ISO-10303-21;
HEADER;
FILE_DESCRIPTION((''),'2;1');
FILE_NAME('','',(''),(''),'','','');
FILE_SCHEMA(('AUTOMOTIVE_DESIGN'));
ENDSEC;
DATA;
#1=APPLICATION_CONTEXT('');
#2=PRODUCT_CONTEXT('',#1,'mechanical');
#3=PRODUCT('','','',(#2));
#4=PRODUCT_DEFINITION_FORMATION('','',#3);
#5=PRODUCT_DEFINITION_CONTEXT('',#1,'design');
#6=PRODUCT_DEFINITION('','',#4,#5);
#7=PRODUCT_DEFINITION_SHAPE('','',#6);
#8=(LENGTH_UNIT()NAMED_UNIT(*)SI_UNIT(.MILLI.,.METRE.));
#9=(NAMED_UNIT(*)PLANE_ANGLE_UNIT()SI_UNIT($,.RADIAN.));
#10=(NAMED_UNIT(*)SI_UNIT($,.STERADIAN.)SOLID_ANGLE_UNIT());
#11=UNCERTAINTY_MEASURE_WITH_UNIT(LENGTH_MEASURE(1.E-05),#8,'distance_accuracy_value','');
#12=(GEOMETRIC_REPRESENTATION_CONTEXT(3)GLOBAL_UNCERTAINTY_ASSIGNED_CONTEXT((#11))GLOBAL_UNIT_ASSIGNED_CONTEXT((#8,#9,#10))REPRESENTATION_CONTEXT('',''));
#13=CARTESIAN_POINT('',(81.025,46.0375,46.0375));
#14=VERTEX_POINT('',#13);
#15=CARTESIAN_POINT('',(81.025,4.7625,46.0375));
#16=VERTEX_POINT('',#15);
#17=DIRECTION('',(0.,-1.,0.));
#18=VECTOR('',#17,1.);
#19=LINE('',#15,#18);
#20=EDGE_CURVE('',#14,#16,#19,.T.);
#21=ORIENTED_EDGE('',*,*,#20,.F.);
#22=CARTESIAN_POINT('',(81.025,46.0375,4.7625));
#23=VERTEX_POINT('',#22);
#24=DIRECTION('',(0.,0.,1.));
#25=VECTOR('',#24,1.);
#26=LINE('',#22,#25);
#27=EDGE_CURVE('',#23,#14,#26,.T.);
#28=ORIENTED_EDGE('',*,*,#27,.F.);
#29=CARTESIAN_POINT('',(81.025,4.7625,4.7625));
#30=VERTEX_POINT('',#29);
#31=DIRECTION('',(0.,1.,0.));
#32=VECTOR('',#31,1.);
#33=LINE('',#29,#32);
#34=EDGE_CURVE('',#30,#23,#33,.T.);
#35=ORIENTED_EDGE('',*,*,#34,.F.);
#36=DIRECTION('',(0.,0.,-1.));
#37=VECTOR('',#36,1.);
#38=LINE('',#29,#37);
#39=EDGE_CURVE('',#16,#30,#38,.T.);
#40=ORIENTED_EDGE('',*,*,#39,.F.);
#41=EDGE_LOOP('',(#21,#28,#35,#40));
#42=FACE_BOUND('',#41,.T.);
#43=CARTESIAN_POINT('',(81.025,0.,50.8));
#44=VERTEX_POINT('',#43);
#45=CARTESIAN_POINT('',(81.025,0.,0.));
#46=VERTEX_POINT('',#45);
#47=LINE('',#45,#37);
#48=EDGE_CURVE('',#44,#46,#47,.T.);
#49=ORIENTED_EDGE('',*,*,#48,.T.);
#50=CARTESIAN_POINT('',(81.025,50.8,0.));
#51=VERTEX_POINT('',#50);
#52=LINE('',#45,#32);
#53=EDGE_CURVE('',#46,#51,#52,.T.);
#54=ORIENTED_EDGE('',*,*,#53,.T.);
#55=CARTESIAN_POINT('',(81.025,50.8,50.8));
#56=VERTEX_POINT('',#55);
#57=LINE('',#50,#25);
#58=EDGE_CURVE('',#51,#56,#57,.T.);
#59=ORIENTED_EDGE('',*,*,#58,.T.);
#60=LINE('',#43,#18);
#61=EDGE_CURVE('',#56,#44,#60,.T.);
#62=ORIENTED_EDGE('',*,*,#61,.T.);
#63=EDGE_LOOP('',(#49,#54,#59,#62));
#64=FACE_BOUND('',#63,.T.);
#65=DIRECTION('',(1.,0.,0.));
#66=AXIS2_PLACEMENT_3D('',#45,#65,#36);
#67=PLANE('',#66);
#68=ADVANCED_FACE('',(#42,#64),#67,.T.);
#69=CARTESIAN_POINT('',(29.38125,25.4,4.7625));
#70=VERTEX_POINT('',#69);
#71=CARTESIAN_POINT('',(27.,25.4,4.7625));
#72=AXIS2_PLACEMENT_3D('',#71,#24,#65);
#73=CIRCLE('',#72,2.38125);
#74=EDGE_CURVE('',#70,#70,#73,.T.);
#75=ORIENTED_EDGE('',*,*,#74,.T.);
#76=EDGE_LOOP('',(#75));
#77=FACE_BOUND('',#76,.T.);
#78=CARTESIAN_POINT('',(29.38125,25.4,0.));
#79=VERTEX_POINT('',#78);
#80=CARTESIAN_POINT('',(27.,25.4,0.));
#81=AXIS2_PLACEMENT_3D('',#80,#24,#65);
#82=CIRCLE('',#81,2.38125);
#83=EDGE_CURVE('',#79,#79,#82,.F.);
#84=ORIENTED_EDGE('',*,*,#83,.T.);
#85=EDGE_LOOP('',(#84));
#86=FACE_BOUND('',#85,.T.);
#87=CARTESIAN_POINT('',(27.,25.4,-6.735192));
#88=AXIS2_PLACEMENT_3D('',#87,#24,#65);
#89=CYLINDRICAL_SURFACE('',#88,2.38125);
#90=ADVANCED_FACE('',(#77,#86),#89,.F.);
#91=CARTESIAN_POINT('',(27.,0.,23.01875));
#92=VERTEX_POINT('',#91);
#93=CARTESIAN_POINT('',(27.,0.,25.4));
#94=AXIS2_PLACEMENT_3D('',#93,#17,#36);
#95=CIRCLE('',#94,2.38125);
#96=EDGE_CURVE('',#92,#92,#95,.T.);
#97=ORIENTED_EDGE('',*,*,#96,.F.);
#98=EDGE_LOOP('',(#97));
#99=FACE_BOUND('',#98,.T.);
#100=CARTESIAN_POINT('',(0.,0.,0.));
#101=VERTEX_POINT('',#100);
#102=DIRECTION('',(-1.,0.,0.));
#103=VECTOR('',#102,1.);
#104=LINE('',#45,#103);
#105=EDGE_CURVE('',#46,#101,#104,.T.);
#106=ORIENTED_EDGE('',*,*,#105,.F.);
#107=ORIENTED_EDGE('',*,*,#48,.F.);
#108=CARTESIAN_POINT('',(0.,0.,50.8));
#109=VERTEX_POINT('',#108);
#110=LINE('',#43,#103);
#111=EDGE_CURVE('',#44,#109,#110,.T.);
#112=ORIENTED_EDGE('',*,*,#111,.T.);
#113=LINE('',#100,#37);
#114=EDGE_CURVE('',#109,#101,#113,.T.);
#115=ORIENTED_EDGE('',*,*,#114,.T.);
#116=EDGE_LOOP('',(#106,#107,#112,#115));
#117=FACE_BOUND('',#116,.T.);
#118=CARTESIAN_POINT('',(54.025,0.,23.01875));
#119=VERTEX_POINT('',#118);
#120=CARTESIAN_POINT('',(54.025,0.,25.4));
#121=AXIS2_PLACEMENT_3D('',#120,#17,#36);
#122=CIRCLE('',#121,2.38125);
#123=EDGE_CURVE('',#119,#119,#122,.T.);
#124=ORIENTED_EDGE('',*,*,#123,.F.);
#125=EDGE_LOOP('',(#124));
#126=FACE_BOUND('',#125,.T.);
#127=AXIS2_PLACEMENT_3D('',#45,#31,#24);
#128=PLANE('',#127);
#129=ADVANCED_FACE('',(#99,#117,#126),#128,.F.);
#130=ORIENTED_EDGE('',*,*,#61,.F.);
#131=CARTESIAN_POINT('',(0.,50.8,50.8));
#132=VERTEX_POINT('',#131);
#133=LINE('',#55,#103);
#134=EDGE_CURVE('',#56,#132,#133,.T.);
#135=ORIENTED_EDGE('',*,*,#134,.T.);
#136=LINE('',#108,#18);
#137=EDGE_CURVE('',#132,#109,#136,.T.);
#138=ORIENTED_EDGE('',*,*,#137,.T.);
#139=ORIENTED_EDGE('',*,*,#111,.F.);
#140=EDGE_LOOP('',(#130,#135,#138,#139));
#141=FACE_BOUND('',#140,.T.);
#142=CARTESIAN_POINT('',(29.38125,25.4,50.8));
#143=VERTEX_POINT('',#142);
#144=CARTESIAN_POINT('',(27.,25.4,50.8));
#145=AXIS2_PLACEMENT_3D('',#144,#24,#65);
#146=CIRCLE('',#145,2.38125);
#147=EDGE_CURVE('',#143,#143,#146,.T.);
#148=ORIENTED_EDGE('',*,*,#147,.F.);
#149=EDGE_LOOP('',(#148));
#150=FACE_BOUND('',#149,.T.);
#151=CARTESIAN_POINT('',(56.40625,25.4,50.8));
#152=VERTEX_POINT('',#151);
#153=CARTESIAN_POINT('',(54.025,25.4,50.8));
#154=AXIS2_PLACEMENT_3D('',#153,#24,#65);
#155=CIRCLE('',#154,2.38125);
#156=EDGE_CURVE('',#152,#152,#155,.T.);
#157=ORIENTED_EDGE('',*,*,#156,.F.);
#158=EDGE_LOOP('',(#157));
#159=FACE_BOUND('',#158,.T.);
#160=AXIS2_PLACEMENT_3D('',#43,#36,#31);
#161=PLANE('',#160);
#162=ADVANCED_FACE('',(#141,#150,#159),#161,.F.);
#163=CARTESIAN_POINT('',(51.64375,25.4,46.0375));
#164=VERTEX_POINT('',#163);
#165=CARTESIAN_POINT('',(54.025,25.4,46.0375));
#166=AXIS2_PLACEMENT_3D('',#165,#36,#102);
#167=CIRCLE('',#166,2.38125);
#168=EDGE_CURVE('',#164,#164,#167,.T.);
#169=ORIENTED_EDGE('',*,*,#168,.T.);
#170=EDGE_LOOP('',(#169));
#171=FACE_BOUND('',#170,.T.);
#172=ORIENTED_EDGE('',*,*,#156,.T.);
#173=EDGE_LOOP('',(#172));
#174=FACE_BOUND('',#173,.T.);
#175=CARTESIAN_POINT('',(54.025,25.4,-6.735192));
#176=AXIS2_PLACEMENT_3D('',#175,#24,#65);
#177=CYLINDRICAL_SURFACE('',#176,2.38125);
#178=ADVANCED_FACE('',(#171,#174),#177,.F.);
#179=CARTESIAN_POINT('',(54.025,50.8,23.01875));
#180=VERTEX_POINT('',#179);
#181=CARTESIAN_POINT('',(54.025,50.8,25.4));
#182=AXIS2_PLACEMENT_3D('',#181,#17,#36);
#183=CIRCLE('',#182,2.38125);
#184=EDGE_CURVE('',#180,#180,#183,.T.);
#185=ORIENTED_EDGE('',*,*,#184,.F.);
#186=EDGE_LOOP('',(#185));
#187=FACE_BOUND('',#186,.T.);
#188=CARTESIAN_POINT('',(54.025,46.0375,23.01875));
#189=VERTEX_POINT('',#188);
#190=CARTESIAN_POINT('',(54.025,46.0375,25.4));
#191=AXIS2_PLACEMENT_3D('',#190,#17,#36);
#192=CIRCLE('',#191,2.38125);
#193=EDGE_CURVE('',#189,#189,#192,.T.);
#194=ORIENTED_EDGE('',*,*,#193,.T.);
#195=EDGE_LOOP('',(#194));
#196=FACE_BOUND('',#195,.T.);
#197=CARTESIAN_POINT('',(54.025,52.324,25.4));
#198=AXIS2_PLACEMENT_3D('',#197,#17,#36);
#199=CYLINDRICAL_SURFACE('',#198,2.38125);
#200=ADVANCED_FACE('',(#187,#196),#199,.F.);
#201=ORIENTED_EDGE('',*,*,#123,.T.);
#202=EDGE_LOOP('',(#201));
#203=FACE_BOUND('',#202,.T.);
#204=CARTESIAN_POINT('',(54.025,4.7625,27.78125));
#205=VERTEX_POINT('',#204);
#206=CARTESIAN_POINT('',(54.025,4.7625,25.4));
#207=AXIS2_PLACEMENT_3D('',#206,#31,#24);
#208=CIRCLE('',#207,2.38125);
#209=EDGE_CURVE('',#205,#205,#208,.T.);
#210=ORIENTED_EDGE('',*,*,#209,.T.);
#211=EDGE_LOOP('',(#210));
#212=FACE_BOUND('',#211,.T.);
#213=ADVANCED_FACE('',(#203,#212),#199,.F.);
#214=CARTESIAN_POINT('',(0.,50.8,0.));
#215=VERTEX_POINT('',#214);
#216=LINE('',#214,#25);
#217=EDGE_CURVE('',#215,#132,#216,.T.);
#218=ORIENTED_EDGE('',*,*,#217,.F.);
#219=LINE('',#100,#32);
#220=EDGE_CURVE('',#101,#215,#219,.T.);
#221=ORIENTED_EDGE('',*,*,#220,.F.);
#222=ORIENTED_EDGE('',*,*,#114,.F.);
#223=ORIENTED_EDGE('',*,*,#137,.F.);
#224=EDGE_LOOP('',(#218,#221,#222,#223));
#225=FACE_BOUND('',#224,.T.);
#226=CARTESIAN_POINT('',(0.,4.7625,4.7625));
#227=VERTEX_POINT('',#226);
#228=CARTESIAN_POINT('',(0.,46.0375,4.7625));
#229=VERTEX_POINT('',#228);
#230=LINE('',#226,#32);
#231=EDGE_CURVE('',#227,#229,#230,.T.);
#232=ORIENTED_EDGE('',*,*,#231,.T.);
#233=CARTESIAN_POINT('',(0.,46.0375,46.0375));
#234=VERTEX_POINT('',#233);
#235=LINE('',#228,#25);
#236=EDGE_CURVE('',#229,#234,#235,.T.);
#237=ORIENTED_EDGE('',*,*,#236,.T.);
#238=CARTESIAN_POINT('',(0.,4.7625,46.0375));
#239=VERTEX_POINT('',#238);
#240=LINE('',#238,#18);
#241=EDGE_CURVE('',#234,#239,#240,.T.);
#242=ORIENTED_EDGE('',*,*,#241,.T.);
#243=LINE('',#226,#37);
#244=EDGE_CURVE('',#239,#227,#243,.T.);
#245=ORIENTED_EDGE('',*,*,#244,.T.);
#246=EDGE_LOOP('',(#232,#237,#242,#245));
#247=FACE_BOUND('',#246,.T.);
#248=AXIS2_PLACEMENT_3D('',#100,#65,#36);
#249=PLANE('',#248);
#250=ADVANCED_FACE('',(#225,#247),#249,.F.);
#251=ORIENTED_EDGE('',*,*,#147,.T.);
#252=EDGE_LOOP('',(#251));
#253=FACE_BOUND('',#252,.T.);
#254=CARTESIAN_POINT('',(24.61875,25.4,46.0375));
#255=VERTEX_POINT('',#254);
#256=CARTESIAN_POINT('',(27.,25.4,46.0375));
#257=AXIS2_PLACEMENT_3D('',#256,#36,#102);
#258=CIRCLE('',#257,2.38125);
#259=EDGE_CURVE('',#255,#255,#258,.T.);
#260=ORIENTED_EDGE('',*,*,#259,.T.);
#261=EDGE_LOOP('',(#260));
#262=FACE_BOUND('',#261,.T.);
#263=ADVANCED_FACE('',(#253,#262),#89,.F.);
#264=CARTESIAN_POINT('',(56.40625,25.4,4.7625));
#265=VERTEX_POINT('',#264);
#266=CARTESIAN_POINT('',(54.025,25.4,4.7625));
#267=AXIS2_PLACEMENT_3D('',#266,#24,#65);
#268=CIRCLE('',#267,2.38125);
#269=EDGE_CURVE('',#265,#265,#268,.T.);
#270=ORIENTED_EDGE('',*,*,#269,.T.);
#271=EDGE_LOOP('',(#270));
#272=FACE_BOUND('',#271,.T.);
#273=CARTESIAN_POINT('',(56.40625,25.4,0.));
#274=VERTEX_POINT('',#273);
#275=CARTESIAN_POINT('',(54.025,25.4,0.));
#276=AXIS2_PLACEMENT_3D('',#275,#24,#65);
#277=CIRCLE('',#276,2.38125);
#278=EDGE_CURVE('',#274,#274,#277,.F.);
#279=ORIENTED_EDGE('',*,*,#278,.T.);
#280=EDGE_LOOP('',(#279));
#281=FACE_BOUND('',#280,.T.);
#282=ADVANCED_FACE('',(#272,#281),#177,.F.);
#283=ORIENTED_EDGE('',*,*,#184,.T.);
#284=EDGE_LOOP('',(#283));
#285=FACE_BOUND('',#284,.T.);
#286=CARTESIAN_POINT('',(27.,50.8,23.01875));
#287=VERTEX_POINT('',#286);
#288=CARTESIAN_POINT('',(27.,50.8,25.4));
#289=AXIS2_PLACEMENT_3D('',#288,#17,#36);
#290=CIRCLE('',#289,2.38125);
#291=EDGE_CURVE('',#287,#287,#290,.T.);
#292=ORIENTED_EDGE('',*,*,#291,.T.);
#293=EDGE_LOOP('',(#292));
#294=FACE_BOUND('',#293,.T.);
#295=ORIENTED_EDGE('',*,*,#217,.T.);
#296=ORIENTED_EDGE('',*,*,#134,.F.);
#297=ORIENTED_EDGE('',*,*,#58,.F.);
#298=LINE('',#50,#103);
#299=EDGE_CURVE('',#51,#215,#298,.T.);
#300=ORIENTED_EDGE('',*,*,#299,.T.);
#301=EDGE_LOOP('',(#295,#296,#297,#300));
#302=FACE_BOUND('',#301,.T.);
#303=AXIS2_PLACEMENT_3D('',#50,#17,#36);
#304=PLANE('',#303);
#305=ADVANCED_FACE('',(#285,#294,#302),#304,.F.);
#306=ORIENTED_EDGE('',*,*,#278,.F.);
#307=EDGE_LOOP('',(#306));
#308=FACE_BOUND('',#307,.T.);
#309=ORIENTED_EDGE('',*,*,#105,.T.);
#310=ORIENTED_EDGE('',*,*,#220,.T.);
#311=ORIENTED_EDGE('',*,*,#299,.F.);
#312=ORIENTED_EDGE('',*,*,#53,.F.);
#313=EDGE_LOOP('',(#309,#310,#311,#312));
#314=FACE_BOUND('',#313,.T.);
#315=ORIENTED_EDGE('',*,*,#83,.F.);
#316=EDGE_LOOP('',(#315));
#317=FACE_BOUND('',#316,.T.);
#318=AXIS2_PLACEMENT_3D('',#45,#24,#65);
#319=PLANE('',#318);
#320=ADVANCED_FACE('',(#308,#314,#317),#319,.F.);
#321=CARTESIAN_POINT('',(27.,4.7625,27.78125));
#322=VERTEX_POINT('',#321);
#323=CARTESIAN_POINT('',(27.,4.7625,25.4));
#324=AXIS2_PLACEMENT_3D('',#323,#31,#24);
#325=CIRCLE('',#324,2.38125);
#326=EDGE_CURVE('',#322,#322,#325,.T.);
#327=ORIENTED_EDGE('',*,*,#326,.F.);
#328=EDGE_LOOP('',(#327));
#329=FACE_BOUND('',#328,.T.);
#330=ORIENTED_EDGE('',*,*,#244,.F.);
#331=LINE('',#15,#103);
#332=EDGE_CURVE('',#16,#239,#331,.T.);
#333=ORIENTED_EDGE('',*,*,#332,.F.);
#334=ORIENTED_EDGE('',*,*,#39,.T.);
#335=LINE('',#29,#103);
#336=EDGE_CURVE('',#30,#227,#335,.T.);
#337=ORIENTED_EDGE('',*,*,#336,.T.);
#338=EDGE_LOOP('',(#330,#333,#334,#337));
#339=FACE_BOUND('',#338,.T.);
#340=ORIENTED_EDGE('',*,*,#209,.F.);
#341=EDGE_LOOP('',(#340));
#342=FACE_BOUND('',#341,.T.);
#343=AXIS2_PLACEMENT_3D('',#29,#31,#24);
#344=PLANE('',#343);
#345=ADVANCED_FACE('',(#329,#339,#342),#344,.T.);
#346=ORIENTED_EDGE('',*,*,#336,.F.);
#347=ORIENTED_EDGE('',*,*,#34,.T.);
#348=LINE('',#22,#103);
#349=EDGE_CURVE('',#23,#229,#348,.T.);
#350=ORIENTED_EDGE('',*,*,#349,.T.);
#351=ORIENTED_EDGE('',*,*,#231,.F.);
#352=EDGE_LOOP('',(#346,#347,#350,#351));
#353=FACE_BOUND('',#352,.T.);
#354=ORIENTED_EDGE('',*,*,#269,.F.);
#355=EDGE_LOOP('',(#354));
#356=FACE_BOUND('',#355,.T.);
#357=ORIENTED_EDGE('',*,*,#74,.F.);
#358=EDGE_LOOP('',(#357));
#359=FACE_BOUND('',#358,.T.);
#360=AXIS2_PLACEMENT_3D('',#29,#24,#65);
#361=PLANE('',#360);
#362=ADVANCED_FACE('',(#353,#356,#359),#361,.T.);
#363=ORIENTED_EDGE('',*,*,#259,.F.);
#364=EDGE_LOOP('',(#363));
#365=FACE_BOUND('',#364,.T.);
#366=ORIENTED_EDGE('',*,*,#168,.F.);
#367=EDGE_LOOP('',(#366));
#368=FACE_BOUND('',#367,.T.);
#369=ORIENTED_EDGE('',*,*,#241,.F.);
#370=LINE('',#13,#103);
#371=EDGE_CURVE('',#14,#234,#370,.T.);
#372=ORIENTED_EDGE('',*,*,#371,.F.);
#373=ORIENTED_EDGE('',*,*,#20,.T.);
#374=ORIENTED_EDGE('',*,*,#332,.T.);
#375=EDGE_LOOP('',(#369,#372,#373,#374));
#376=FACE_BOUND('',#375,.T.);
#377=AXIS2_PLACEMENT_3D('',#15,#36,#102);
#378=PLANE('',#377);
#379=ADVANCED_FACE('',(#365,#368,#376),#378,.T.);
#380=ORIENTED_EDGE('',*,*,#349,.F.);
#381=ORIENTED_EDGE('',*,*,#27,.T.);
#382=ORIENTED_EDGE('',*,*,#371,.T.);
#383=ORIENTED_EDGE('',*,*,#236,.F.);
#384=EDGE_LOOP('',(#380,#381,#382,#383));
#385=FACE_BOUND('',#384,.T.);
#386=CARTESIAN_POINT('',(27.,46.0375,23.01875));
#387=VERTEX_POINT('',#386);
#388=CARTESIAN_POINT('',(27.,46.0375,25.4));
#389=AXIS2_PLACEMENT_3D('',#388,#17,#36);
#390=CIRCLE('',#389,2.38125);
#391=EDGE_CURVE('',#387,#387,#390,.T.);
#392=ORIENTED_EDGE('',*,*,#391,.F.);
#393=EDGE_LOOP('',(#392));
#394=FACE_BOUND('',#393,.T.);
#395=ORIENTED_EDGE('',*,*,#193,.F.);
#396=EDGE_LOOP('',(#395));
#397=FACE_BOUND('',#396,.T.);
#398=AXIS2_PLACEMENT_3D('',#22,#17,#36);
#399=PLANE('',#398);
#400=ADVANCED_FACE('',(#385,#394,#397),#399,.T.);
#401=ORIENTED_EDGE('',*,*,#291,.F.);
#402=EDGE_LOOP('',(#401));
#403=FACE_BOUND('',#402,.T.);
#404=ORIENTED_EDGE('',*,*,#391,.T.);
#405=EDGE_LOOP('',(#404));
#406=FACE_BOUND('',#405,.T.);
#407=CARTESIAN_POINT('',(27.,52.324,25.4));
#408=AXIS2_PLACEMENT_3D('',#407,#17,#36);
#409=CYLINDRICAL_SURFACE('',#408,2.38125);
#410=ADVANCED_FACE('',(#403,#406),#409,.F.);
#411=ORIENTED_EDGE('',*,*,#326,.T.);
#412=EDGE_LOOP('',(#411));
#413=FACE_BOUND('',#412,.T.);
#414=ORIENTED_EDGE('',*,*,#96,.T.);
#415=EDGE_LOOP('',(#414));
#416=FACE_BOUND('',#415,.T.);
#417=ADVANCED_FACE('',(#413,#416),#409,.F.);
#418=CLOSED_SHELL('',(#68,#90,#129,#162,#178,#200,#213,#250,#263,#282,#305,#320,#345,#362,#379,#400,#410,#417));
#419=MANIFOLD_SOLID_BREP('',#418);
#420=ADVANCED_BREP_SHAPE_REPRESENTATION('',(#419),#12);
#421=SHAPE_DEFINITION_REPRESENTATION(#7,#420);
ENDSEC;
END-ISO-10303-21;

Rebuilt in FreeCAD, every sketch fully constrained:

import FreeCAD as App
import Part
import Sketcher

V = App.Vector
Q = App.Units.Quantity


def add_polygon(sketch, points):
    """Adds a closed chain of lines whose ends are joined by coincident constraints."""
    first, n = sketch.GeometryCount, len(points)
    for a, b in zip(points, points[1:] + points[:1]):
        sketch.addGeometry(Part.LineSegment(App.Vector(*a, 0), App.Vector(*b, 0)), False)
    for i in range(n):
        sketch.addConstraint(Sketcher.Constraint("Coincident", first + i, 2, first + (i + 1) % n, 1))

doc = App.newDocument("Part")
body = doc.addObject("PartDesign::Body", "Body")

# Sketch on YZ plane
sketch1 = body.newObject("Sketcher::SketchObject", "Sketch")
sketch1.AttachmentSupport = (doc.getObject("YZ_Plane"), [""])
sketch1.MapMode = "FlatFace"
add_polygon(sketch1, [(51, 51), (0, 51), (0, 0), (51, 0)])  # lines 0-3
add_polygon(sketch1, [(5, 5), (5, 46), (46, 46), (46, 5)])  # lines 4-7
sketch1.addConstraint([
    Sketcher.Constraint("Horizontal", 0),
    Sketcher.Constraint("Vertical", 1),
    Sketcher.Constraint("Horizontal", 2),
    Sketcher.Constraint("Vertical", 3),
    Sketcher.Constraint("Vertical", 4),
    Sketcher.Constraint("Horizontal", 5),
    Sketcher.Constraint("Vertical", 6),
    Sketcher.Constraint("Horizontal", 7),
    Sketcher.Constraint("Coincident", 1, 2, -1, 1),
    Sketcher.Constraint("Equal", 2, 1),
    Sketcher.Constraint("Equal", 7, 4),
    Sketcher.Constraint("DistanceX", 0, 2, 0, 1, Q("2 in")),
    Sketcher.Constraint("DistanceX", 5, 1, 5, 2, Q("1.625 in")),
    Sketcher.Constraint("DistanceX", -1, 1, 4, 2, Q("0.1875 in")),
    Sketcher.Constraint("DistanceY", -1, 1, 4, 2, Q("1.8125 in")),
])
pad1 = body.newObject("PartDesign::Pad", "Pad")
pad1.Profile = sketch1
pad1.Length = 81.025

# Sketch on XY plane
sketch2 = body.newObject("Sketcher::SketchObject", "Sketch001")
sketch2.AttachmentSupport = (doc.getObject("XY_Plane"), [""])
sketch2.MapMode = "FlatFace"
sketch2.AttachmentOffset = App.Placement(V(0, 0, 2 * 25.4), App.Rotation())
sketch2.addGeometry([
    Part.Circle(V(27, 25.4, 0), V(0, 0, 1), 2.4),
    Part.Circle(V(54, 25.4, 0), V(0, 0, 1), 2.4),
], False)
sketch2.addConstraint([
    Sketcher.Constraint("Equal", 0, 1),
    Sketcher.Constraint("Horizontal", 0, 3, 1, 3),
    Sketcher.Constraint("Diameter", 0, Q("0.1875 in")),
    Sketcher.Constraint("DistanceY", -1, 1, 0, 3, Q("1 in")),
    Sketcher.Constraint("DistanceX", -1, 1, 0, 3, 27.0),
    Sketcher.Constraint("DistanceX", -1, 1, 1, 3, 54.025),
])
pocket1 = body.newObject("PartDesign::Pocket", "Pocket")
pocket1.Profile = sketch2
pocket1.Length = Q("2 in")

# Sketch on XZ plane
sketch3 = body.newObject("Sketcher::SketchObject", "Sketch002")
sketch3.AttachmentSupport = (doc.getObject("XZ_Plane"), [""])
sketch3.MapMode = "FlatFace"
sketch3.addGeometry([
    Part.Circle(V(27, 25.4, 0), V(0, 0, 1), 2.4),
    Part.Circle(V(54, 25.4, 0), V(0, 0, 1), 2.4),
], False)
sketch3.addConstraint([
    Sketcher.Constraint("Equal", 0, 1),
    Sketcher.Constraint("Horizontal", 0, 3, 1, 3),
    Sketcher.Constraint("Diameter", 0, Q("0.1875 in")),
    Sketcher.Constraint("DistanceY", -1, 1, 0, 3, Q("1 in")),
    Sketcher.Constraint("DistanceX", -1, 1, 0, 3, 27.0),
    Sketcher.Constraint("DistanceX", -1, 1, 1, 3, 54.025),
])
pocket2 = body.newObject("PartDesign::Pocket", "Pocket001")
pocket2.Profile = sketch3
pocket2.Length = Q("2.06 in")

doc.recompute()
